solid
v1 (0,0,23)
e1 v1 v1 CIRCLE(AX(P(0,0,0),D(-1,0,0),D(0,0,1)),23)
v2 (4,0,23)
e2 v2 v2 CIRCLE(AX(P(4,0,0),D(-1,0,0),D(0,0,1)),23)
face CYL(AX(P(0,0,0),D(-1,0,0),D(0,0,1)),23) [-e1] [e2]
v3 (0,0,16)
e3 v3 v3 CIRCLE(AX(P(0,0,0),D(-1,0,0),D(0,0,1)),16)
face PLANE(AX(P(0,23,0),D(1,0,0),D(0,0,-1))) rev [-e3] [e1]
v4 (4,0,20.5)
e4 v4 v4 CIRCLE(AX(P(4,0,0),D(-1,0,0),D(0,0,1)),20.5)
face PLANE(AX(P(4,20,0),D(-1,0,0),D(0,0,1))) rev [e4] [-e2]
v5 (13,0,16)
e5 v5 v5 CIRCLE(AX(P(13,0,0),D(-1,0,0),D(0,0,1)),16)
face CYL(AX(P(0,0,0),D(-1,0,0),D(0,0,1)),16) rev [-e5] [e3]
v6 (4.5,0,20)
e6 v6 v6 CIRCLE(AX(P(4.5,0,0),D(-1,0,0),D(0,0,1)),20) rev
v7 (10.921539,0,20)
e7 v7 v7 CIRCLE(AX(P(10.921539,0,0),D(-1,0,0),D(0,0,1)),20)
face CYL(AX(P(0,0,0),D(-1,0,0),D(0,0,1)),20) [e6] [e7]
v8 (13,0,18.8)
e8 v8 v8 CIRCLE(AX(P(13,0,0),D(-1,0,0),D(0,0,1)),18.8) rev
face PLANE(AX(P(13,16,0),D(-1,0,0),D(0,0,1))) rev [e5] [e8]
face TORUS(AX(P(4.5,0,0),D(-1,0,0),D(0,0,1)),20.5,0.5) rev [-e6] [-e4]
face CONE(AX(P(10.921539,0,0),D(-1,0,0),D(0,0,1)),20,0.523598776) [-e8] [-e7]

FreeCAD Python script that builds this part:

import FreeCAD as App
import Part
import Sketcher
from FreeCAD import Vector


def edges_at(feature, points):
    """Names of the edges that pass closest to the given points."""
    edges = feature.Shape.Edges
    near = lambda p: min(range(len(edges)), key=lambda i: edges[i].distToShape(Part.Vertex(*p))[0])
    return sorted({f"Edge{near(p) + 1}" for p in points})


def add_polygon(sketch, points):
    """Adds a closed chain of lines whose ends are joined by coincident constraints."""
    first, n = sketch.GeometryCount, len(points)
    for a, b in zip(points, points[1:] + points[:1]):
        sketch.addGeometry(Part.LineSegment(App.Vector(*a, 0), App.Vector(*b, 0)), False)
    for i in range(n):
        sketch.addConstraint(Sketcher.Constraint("Coincident", first + i, 2, first + (i + 1) % n, 1))

doc = App.newDocument("Part")
params = doc.addObject("Spreadsheet::Sheet", "Params")
for row, (alias, value) in enumerate([
    ("sketch1_width", "13 mm"),
    ("sketch1_width2", "9 mm"),
    ("sketch1_height", "3 mm"),
    ("revolution_angle", "360 deg"),
    ("fillet_radius", "0.5 mm"),
    ("chamfer_size", "1.2 mm"),
    ("chamfer_size2", "2.078461 mm"),
], start=1):
    params.set(f"A{row}", alias)
    params.set(f"B{row}", "=" + value)
    params.setAlias(f"B{row}", alias)

body = doc.addObject("PartDesign::Body", "Body")

# Sketch on XY plane
sketch1 = body.newObject("Sketcher::SketchObject", "Sketch")
sketch1.AttachmentSupport = (doc.getObject("XY_Plane"), [""])
sketch1.MapMode = "FlatFace"
add_polygon(sketch1, [(0, 16), (13, 16), (13, 20), (4, 20), (4, 23), (0, 23)])  # lines 0-5
sketch1.addConstraint([
    Sketcher.Constraint("Horizontal", 0),
    Sketcher.Constraint("Vertical", 1),
    Sketcher.Constraint("Horizontal", 2),
    Sketcher.Constraint("Vertical", 3),
    Sketcher.Constraint("Horizontal", 4),
    Sketcher.Constraint("Vertical", 5),
    Sketcher.Constraint("PointOnObject", 4, 2, -2),
    Sketcher.Constraint("Equal", 4, 1),
    Sketcher.Constraint("DistanceX", 0, 1, 0, 2, 13.0),
    Sketcher.Constraint("DistanceX", 2, 2, 2, 1, 9.0),
    Sketcher.Constraint("DistanceY", 3, 1, 3, 2, 3.0),
    Sketcher.Constraint("DistanceY", -1, 1, 0, 2, 16.0),
])
sketch1.setExpression("Constraints[14]", "Params.sketch1_width")
sketch1.setExpression("Constraints[15]", "Params.sketch1_width2")
sketch1.setExpression("Constraints[16]", "Params.sketch1_height")
revolution = body.newObject("PartDesign::Revolution", "Revolution")
revolution.Profile = sketch1
revolution.ReferenceAxis = (sketch1, ["H_Axis"])
revolution.setExpression("Angle", "Params.revolution_angle")
doc.recompute()

fillet = body.newObject("PartDesign::Fillet", "Fillet")
fillet.Base = (revolution, edges_at(revolution, [(4, 0, -20)]))
fillet.setExpression("Radius", "Params.fillet_radius")
doc.recompute()

chamfer = body.newObject("PartDesign::Chamfer", "Chamfer")
chamfer.Base = (fillet, edges_at(fillet, [(13, 0, -20)]))
chamfer.ChamferType = "Two distances"
chamfer.setExpression("Size", "Params.chamfer_size")
chamfer.setExpression("Size2", "Params.chamfer_size2")
chamfer.FlipDirection = True

doc.recompute()
